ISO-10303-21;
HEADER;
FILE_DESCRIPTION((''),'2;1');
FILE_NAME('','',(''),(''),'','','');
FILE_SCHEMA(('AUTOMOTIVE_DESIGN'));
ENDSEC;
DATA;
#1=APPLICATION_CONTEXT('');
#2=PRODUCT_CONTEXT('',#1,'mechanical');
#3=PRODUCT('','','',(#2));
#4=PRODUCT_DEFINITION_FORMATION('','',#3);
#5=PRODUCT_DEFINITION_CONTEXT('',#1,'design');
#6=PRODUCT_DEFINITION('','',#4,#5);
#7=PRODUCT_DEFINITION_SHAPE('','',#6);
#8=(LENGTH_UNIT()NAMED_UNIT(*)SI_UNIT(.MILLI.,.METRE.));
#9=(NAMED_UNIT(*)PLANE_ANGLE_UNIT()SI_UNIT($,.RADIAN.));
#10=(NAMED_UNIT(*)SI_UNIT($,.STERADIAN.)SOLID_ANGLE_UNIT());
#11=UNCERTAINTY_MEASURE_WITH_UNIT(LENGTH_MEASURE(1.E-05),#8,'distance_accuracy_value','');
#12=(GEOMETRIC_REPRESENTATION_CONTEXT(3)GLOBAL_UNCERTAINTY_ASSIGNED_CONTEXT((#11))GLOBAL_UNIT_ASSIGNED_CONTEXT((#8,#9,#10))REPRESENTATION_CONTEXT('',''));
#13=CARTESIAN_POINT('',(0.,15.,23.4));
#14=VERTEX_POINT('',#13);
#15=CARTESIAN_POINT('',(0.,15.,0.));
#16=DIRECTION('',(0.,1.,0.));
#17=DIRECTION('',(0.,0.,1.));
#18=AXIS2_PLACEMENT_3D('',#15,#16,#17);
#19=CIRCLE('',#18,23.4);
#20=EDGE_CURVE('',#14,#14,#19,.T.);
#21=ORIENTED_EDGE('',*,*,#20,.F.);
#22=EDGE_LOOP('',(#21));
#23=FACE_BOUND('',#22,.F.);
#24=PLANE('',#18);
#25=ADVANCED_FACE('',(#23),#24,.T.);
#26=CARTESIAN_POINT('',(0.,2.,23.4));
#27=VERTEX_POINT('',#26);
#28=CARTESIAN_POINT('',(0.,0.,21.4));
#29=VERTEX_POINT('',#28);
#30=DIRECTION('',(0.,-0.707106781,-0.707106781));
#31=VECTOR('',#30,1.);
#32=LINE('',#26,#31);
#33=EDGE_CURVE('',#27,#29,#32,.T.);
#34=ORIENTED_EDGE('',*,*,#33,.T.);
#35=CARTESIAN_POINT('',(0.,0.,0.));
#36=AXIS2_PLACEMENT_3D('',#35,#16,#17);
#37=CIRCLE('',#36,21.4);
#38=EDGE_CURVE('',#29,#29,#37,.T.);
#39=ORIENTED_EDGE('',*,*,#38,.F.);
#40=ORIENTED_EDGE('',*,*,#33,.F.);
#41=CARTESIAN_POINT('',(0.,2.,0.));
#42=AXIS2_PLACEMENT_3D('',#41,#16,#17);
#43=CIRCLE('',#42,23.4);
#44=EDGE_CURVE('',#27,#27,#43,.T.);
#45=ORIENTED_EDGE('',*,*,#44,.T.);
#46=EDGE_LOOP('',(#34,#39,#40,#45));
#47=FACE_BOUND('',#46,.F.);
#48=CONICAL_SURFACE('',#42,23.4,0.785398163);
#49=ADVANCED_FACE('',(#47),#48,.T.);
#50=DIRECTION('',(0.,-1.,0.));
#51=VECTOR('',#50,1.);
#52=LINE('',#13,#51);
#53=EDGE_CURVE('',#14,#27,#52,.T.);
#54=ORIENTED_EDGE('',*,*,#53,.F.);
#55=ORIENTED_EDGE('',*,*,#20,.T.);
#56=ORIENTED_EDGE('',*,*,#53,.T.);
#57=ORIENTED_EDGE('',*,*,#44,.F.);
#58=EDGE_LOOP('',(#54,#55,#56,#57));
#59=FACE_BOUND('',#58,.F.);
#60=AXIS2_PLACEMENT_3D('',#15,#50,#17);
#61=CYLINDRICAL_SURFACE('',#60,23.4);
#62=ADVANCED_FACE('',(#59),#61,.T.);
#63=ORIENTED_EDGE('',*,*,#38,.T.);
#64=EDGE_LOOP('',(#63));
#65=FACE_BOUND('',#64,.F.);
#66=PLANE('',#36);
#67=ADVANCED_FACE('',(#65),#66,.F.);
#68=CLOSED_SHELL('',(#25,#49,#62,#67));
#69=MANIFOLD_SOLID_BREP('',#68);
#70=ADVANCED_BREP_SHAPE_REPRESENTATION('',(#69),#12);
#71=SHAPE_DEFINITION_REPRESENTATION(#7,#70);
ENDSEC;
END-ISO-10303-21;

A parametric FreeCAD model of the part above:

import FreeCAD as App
import Part
import Sketcher
Q = App.Units.Quantity

doc = App.newDocument("Part")
body = doc.addObject("PartDesign::Body", "Body")

sketch1 = doc.addObject("Sketcher::SketchObject", "Sketch")
body.addObject(sketch1)
sketch1.AttachmentSupport = (doc.YZ_Plane, [""])
sketch1.MapMode = "FlatFace"
sketch1.addGeometry([
    Part.LineSegment(App.Vector(0, 21.4, 0), App.Vector(0, 0, 0)),
    Part.LineSegment(App.Vector(0, 0, 0), App.Vector(15, 0, 0)),
    Part.LineSegment(App.Vector(15, 0, 0), App.Vector(15, 23.4, 0)),
    Part.LineSegment(App.Vector(15, 23.4, 0), App.Vector(2, 23.4, 0)),
    Part.LineSegment(App.Vector(2, 23.4, 0), App.Vector(0, 21.4, 0)),
], False)
sketch1.addConstraint([
    Sketcher.Constraint("Coincident", 0, 2, 1, 1),
    Sketcher.Constraint("Coincident", 1, 2, 2, 1),
    Sketcher.Constraint("Coincident", 2, 2, 3, 1),
    Sketcher.Constraint("Coincident", 3, 2, 4, 1),
    Sketcher.Constraint("Coincident", 4, 2, 0, 1),
    Sketcher.Constraint("Vertical", 0),
    Sketcher.Constraint("Horizontal", 1),
    Sketcher.Constraint("Vertical", 2),
    Sketcher.Constraint("Horizontal", 3),
    Sketcher.Constraint("Coincident", 0, 2, -1, 1),
    Sketcher.Constraint("DistanceX", 1, 1, 1, 2, Q("15 mm")),
    Sketcher.Constraint("DistanceY", 2, 1, 2, 2, Q("23.4 mm")),
    Sketcher.Constraint("DistanceX", -1, 1, 3, 2, Q("2 mm")),
    Sketcher.Constraint("DistanceY", 4, 2, 3, 2, Q("2 mm")),
])
revolution = doc.addObject("PartDesign::Revolution", "Revolution")
body.addObject(revolution)
revolution.Profile = sketch1
revolution.ReferenceAxis = (sketch1, ["H_Axis"])
revolution.Angle = 360

doc.recompute()
